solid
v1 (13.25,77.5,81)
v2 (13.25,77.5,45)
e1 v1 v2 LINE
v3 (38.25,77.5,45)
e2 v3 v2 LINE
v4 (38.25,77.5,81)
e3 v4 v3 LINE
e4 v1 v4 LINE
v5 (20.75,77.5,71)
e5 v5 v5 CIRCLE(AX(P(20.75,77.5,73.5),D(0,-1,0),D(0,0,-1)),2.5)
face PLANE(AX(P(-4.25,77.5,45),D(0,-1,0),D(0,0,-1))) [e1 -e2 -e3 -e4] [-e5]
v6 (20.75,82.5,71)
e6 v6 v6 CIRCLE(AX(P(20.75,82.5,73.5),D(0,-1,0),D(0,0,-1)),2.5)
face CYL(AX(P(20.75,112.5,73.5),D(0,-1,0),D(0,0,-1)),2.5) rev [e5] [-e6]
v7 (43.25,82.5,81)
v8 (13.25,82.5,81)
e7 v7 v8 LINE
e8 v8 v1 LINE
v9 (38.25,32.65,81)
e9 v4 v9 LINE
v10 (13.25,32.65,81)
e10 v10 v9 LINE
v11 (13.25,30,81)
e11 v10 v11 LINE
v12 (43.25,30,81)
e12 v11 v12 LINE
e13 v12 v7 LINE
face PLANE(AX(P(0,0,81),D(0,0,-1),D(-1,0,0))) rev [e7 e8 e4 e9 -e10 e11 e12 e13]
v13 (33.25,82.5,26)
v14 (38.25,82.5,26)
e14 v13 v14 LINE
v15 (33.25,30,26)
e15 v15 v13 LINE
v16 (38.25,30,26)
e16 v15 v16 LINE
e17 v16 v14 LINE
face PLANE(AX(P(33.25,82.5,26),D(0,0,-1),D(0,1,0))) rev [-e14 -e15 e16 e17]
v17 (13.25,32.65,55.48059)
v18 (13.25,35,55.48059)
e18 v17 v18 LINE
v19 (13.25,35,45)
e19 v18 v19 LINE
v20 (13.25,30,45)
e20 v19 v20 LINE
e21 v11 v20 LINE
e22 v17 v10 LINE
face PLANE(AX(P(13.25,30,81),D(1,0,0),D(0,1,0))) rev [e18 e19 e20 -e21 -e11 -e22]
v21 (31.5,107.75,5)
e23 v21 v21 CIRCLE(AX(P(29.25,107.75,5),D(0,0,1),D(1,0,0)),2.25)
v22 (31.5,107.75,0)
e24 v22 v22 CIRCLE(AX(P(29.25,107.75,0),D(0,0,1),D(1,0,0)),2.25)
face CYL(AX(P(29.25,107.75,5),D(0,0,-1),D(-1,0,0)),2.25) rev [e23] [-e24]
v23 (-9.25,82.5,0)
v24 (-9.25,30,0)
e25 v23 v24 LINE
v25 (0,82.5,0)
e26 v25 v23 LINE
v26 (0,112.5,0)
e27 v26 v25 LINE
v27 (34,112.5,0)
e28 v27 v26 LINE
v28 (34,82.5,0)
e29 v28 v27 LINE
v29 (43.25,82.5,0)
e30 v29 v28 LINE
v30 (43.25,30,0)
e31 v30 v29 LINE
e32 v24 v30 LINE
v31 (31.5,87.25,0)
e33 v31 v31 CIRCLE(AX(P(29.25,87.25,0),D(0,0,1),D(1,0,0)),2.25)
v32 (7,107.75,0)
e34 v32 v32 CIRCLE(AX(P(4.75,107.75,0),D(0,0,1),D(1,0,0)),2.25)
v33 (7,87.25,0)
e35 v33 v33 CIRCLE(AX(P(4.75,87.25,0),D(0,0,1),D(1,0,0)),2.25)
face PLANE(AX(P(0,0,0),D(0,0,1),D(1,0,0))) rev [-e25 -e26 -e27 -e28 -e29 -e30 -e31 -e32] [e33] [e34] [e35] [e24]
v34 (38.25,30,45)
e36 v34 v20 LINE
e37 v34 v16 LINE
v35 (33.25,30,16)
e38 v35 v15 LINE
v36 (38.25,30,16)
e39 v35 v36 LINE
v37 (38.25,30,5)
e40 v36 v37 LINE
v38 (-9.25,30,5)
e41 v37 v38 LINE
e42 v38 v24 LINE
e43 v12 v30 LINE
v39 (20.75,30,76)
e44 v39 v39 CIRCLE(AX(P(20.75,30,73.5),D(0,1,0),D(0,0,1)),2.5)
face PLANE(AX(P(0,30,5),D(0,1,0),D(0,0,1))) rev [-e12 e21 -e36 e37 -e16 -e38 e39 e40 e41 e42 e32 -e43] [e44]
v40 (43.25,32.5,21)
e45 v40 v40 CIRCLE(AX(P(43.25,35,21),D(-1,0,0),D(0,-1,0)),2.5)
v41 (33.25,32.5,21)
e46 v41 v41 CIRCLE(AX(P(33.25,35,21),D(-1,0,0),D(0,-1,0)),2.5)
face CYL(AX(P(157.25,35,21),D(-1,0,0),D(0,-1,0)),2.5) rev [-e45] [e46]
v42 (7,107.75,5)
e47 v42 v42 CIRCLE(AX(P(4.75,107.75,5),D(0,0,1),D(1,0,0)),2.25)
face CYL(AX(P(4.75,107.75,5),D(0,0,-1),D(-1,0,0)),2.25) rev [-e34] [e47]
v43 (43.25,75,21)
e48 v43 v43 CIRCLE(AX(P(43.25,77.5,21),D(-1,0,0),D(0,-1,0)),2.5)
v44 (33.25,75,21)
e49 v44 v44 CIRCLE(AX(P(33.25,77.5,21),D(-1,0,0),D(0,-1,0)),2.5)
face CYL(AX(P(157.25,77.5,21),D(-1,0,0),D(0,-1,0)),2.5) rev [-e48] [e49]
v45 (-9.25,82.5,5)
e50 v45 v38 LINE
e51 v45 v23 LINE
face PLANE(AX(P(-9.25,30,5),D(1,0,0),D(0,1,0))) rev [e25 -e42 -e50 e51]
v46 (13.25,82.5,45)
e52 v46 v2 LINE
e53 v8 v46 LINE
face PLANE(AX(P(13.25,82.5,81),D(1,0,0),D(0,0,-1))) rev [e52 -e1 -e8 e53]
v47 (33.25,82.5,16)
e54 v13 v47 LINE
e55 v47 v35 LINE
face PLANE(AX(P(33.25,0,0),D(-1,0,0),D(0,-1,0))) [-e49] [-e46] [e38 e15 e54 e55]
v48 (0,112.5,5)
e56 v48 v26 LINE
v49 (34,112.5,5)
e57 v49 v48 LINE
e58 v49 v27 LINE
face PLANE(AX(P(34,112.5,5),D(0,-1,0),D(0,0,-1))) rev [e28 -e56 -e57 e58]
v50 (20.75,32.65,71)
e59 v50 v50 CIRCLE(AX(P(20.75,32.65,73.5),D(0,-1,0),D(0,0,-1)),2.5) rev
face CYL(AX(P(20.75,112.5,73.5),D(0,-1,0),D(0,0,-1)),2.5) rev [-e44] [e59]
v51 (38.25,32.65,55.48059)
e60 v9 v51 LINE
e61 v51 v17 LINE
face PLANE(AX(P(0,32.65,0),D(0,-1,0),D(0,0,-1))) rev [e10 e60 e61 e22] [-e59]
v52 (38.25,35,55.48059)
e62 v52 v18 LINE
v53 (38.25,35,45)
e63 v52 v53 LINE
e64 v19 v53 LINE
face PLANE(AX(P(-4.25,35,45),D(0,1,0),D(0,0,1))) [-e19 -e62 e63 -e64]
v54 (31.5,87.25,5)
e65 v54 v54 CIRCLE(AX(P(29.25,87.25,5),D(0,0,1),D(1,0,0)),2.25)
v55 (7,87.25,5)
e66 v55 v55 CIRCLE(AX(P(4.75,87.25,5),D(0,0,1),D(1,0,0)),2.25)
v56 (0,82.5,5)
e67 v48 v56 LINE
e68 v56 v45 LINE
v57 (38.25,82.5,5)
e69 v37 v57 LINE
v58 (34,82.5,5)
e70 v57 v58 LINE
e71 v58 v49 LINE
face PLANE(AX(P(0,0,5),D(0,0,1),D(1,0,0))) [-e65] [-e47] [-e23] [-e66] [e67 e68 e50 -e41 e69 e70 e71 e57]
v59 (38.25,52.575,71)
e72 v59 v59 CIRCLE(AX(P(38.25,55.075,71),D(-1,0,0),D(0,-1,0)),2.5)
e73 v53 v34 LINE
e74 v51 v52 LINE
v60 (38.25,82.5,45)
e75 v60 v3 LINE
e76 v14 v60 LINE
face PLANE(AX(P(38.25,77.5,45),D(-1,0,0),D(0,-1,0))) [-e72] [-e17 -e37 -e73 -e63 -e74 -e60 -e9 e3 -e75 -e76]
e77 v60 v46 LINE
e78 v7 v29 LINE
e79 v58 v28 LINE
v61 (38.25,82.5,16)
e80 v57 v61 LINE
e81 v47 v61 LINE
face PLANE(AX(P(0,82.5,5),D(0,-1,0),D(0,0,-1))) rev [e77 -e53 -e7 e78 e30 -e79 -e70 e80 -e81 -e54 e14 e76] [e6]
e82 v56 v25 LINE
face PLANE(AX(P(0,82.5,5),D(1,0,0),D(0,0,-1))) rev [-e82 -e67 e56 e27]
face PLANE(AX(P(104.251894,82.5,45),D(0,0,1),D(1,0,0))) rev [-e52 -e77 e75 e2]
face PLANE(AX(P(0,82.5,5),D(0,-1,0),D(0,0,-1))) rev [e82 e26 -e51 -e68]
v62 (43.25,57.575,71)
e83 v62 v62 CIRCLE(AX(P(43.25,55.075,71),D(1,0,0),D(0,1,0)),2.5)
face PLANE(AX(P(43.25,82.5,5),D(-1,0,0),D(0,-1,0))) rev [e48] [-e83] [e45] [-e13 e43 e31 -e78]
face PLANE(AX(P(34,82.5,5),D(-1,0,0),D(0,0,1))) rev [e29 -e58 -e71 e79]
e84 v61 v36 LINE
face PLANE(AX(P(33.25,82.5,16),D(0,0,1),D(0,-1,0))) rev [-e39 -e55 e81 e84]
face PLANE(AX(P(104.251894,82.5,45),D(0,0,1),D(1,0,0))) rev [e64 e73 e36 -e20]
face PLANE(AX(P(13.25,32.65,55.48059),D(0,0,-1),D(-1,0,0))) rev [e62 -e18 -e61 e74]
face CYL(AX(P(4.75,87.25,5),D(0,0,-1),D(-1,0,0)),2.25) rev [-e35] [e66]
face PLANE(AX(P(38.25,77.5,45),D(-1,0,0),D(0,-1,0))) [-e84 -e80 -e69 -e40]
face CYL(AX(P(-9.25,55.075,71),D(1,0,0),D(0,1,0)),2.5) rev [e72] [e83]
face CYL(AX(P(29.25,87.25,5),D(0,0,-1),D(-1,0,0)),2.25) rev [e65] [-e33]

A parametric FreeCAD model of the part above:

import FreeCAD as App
import Part
import Sketcher
from FreeCAD import Vector


def add_polygon(sketch, points):
    """Adds a closed chain of lines whose ends are joined by coincident constraints."""
    first, n = sketch.GeometryCount, len(points)
    for a, b in zip(points, points[1:] + points[:1]):
        sketch.addGeometry(Part.LineSegment(App.Vector(*a, 0), App.Vector(*b, 0)), False)
    for i in range(n):
        sketch.addConstraint(Sketcher.Constraint("Coincident", first + i, 2, first + (i + 1) % n, 1))

doc = App.newDocument("Part")
body = doc.addObject("PartDesign::Body", "Body")

# Sketch on XY plane
sketch1 = body.newObject("Sketcher::SketchObject", "Sketch")
sketch1.AttachmentSupport = (doc.getObject("XY_Plane"), [""])
sketch1.MapMode = "FlatFace"
add_polygon(sketch1, [(-9.2, 30), (0, 30), (0, 0), (34, 0), (34, 30), (43.2, 30), (43.2, 82.5), (34, 82.5), (34, 112.5), (0, 112.5), (0, 82.5), (-9.2, 82.5)])  # lines 0-11
sketch1.addGeometry(Part.Circle(Vector(29.2, 4.8, 0), Vector(0, 0, 1), 2.2), False)  # 12
sketch1.addGeometry(Part.Circle(Vector(29.2, 25.2, 0), Vector(0, 0, 1), 2.2), False)  # 13
sketch1.addGeometry(Part.Circle(Vector(4.8, 4.8, 0), Vector(0, 0, 1), 2.2), False)  # 14
sketch1.addGeometry(Part.Circle(Vector(4.8, 25.2, 0), Vector(0, 0, 1), 2.2), False)  # 15
sketch1.addGeometry(Part.Circle(Vector(29.2, 87.2, 0), Vector(0, 0, 1), 2.2), False)  # 16
sketch1.addGeometry(Part.Circle(Vector(29.2, 107.8, 0), Vector(0, 0, 1), 2.2), False)  # 17
sketch1.addGeometry(Part.Circle(Vector(4.8, 87.2, 0), Vector(0, 0, 1), 2.2), False)  # 18
sketch1.addGeometry(Part.Circle(Vector(4.8, 107.8, 0), Vector(0, 0, 1), 2.2), False)  # 19
sketch1.addConstraint([
    Sketcher.Constraint("Horizontal", 0),
    Sketcher.Constraint("Vertical", 1),
    Sketcher.Constraint("Horizontal", 2),
    Sketcher.Constraint("Vertical", 3),
    Sketcher.Constraint("Horizontal", 4),
    Sketcher.Constraint("Vertical", 5),
    Sketcher.Constraint("Horizontal", 6),
    Sketcher.Constraint("Vertical", 7),
    Sketcher.Constraint("Horizontal", 8),
    Sketcher.Constraint("Vertical", 9),
    Sketcher.Constraint("Horizontal", 10),
    Sketcher.Constraint("Vertical", 11),
    Sketcher.Constraint("Coincident", 1, 2, -1, 1),
    Sketcher.Constraint("Equal", 12, 13),
    Sketcher.Constraint("Equal", 13, 14),
    Sketcher.Constraint("Equal", 14, 15),
    Sketcher.Constraint("Equal", 15, 16),
    Sketcher.Constraint("Equal", 16, 17),
    Sketcher.Constraint("Equal", 17, 18),
    Sketcher.Constraint("Equal", 18, 19),
    Sketcher.Constraint("PointOnObject", 8, 2, -2),
    Sketcher.Constraint("Horizontal", 12, 3, 14, 3),
    Sketcher.Constraint("Horizontal", 13, 3, 15, 3),
    Sketcher.Constraint("Horizontal", 16, 3, 18, 3),
    Sketcher.Constraint("Horizontal", 17, 3, 19, 3),
    Sketcher.Constraint("Horizontal", 0, 2, 3, 2),
    Sketcher.Constraint("Horizontal", 6, 2, 9, 2),
    Sketcher.Constraint("Vertical", 12, 3, 13, 3),
    Sketcher.Constraint("Vertical", 14, 3, 15, 3),
    Sketcher.Constraint("Vertical", 13, 3, 16, 3),
    Sketcher.Constraint("Vertical", 16, 3, 17, 3),
    Sketcher.Constraint("Vertical", 15, 3, 18, 3),
    Sketcher.Constraint("Vertical", 18, 3, 19, 3),
    Sketcher.Constraint("Vertical", 3, 2, 6, 2),
    Sketcher.Constraint("Equal", 0, 4),
    Sketcher.Constraint("Equal", 3, 7),
    Sketcher.Constraint("Diameter", 12, 4.5),
    Sketcher.Constraint("DistanceX", 2, 1, 2, 2, 34.0),
    Sketcher.Constraint("DistanceY", 1, 2, 1, 1, 30.0),
    Sketcher.Constraint("DistanceY", 5, 1, 5, 2, 52.5),
    Sketcher.Constraint("DistanceY", 13, 3, 16, 3, 62.0),
    Sketcher.Constraint("DistanceY", 12, 3, 17, 3, 103.0),
    Sketcher.Constraint("DistanceX", 13, 3, 4, 2, 14.0),
    Sketcher.Constraint("DistanceX", 10, 2, 18, 3, 14.0),
    Sketcher.Constraint("DistanceX", 0, 1, 0, 2, 9.25),
    Sketcher.Constraint("DistanceY", 12, 3, 13, 3, 20.5),
    Sketcher.Constraint("DistanceY", -1, 1, 12, 3, 4.75),
])
pad1 = body.newObject("PartDesign::Pad", "Pad")
pad1.Profile = sketch1
pad1.Length = 5

# Sketch on XY plane
sketch2 = body.newObject("Sketcher::SketchObject", "Sketch001")
sketch2.AttachmentSupport = (doc.getObject("XY_Plane"), [""])
sketch2.MapMode = "FlatFace"
sketch2.AttachmentOffset = App.Placement(Vector(0, 0, 5), App.Rotation())
add_polygon(sketch2, [(-9, 82), (-9, 30), (43, 30), (43, 82)])  # lines 0-3
add_polygon(sketch2, [(38, 35), (-4, 35), (-4, 78), (38, 78)])  # lines 4-7
sketch2.addConstraint([
    Sketcher.Constraint("Vertical", 0),
    Sketcher.Constraint("Horizontal", 1),
    Sketcher.Constraint("Vertical", 2),
    Sketcher.Constraint("Horizontal", 3),
    Sketcher.Constraint("Horizontal", 4),
    Sketcher.Constraint("Vertical", 5),
    Sketcher.Constraint("Horizontal", 6),
    Sketcher.Constraint("Vertical", 7),
    Sketcher.Constraint("Equal", 3, 0),
    Sketcher.Constraint("Equal", 6, 5),
    Sketcher.Constraint("DistanceX", 1, 1, 1, 2, 52.5),
    Sketcher.Constraint("DistanceX", 4, 2, 4, 1, 42.5),
    Sketcher.Constraint("DistanceY", -1, 1, 0, 2, 30.0),
    Sketcher.Constraint("DistanceY", -1, 1, 4, 2, 35.0),
    Sketcher.Constraint("DistanceX", 0, 2, 4, 2, 5.0),
    Sketcher.Constraint("DistanceX", 0, 2, -1, 1, 9.25),
])
pad2 = body.newObject("PartDesign::Pad", "Pad001")
pad2.Profile = sketch2
pad2.Length = 40

# Sketch on XY plane
sketch3 = body.newObject("Sketcher::SketchObject", "Sketch002")
sketch3.AttachmentSupport = (doc.getObject("XY_Plane"), [""])
sketch3.MapMode = "FlatFace"
sketch3.AttachmentOffset = App.Placement(Vector(0, 0, 45), App.Rotation())
add_polygon(sketch3, [(43, 30), (43, 82), (13, 82), (13, 78), (38, 78), (38, 35), (13, 35), (13, 30)])  # lines 0-7
sketch3.addConstraint([
    Sketcher.Constraint("Vertical", 0),
    Sketcher.Constraint("Horizontal", 1),
    Sketcher.Constraint("Vertical", 2),
    Sketcher.Constraint("Horizontal", 3),
    Sketcher.Constraint("Vertical", 4),
    Sketcher.Constraint("Horizontal", 5),
    Sketcher.Constraint("Vertical", 6),
    Sketcher.Constraint("Horizontal", 7),
    Sketcher.Constraint("Vertical", 2, 2, 5, 2),
    Sketcher.Constraint("Equal", 2, 6),
    Sketcher.Constraint("DistanceX", 1, 2, 1, 1, 30.0),
    Sketcher.Constraint("DistanceX", 3, 1, 3, 2, 25.0),
    Sketcher.Constraint("DistanceY", 2, 2, 2, 1, 5.0),
    Sketcher.Constraint("DistanceY", 0, 1, 0, 2, 52.5),
    Sketcher.Constraint("DistanceY", -1, 1, 4, 2, 35.0),
    Sketcher.Constraint("DistanceX", -1, 1, 0, 2, 43.25),
])
pad3 = body.newObject("PartDesign::Pad", "Pad002")
pad3.Profile = sketch3
pad3.Length = 36

# Sketch on XZ plane
sketch4 = body.newObject("Sketcher::SketchObject", "Sketch003")
sketch4.AttachmentSupport = (doc.getObject("XZ_Plane"), [""])
sketch4.MapMode = "FlatFace"
sketch4.AttachmentOffset = App.Placement(Vector(0, 0, -77.5), App.Rotation())
sketch4.addGeometry(Part.Circle(Vector(20.8, 73.5, 0), Vector(0, 0, 1), 2.5), False)
sketch4.addConstraint([
    Sketcher.Constraint("Diameter", 0, 5.0),
    Sketcher.Constraint("DistanceY", -1, 1, 0, 3, 73.5),
    Sketcher.Constraint("DistanceX", -1, 1, 0, 3, 20.75),
])
pocket1 = body.newObject("PartDesign::Pocket", "Pocket")
pocket1.Profile = sketch4
pocket1.Type = "ThroughAll"
pocket1.Midplane = True

# Sketch on YZ plane
sketch5 = body.newObject("Sketcher::SketchObject", "Sketch004")
sketch5.AttachmentSupport = (doc.getObject("YZ_Plane"), [""])
sketch5.MapMode = "FlatFace"
sketch5.AttachmentOffset = App.Placement(Vector(0, 0, 43.25), App.Rotation())
sketch5.addGeometry(Part.Circle(Vector(55.1, 71, 0), Vector(0, 0, 1), 2.5), False)
sketch5.addConstraint([
    Sketcher.Constraint("Diameter", 0, 5.0),
    Sketcher.Constraint("DistanceY", -1, 1, 0, 3, 71.0),
    Sketcher.Constraint("DistanceX", -1, 1, 0, 3, 55.075),
])
pocket2 = body.newObject("PartDesign::Pocket", "Pocket001")
pocket2.Profile = sketch5
pocket2.Type = "ThroughAll"
pocket2.Midplane = True

# Sketch on YZ plane
sketch6 = body.newObject("Sketcher::SketchObject", "Sketch005")
sketch6.AttachmentSupport = (doc.getObject("YZ_Plane"), [""])
sketch6.MapMode = "FlatFace"
sketch6.AttachmentOffset = App.Placement(Vector(0, 0, -9.25), App.Rotation())
add_polygon(sketch6, [(74, 5), (38, 5), (38, 45), (74, 45)])  # lines 0-3
sketch6.addConstraint([
    Sketcher.Constraint("Horizontal", 0),
    Sketcher.Constraint("Vertical", 1),
    Sketcher.Constraint("Horizontal", 2),
    Sketcher.Constraint("Vertical", 3),
    Sketcher.Constraint("DistanceY", 1, 1, 1, 2, 40.0),
    Sketcher.Constraint("DistanceX", 0, 2, 0, 1, 36.5),
    Sketcher.Constraint("DistanceX", -1, 1, 0, 2, 38.0),
    Sketcher.Constraint("DistanceY", -1, 1, 0, 2, 5.0),
])
pocket3 = body.newObject("PartDesign::Pocket", "Pocket002")
pocket3.Profile = sketch6
pocket3.Length = 24
pocket3.Reversed = True

# Sketch on XZ plane
sketch7 = body.newObject("Sketcher::SketchObject", "Sketch006")
sketch7.AttachmentSupport = (doc.getObject("XZ_Plane"), [""])
sketch7.MapMode = "FlatFace"
sketch7.AttachmentOffset = App.Placement(Vector(0, 0, -35), App.Rotation())
add_polygon(sketch7, [(13, 55), (13, 81), (38, 81), (38, 55)])  # lines 0-3
sketch7.addConstraint([
    Sketcher.Constraint("Vertical", 0),
    Sketcher.Constraint("Horizontal", 1),
    Sketcher.Constraint("Vertical", 2),
    Sketcher.Constraint("Horizontal", 3),
    Sketcher.Constraint("DistanceX", 1, 1, 1, 2, 25.0),
    Sketcher.Constraint("DistanceY", -1, 1, 0, 2, 81.0),
    Sketcher.Constraint("DistanceX", -1, 1, 0, 2, 13.25),
    Sketcher.Constraint("DistanceY", 0, 1, 0, 2, 25.51941),
])
pocket4 = body.newObject("PartDesign::Pocket", "Pocket003")
pocket4.Profile = sketch7
pocket4.Length = 2.35
pocket4.Reversed = True

# Sketch on YZ plane
sketch8 = body.newObject("Sketcher::SketchObject", "Sketch007")
sketch8.AttachmentSupport = (doc.getObject("YZ_Plane"), [""])
sketch8.MapMode = "FlatFace"
add_polygon(sketch8, [(30, 0), (0, 0), (0, 5), (30, 5)])  # lines 0-3
sketch8.addConstraint([
    Sketcher.Constraint("Horizontal", 0),
    Sketcher.Constraint("Vertical", 1),
    Sketcher.Constraint("Horizontal", 2),
    Sketcher.Constraint("Vertical", 3),
    Sketcher.Constraint("Coincident", 0, 2, -1, 1),
    Sketcher.Constraint("DistanceX", 0, 2, 0, 1, 30.0),
    Sketcher.Constraint("DistanceY", 1, 1, 1, 2, 5.0),
])
pocket5 = body.newObject("PartDesign::Pocket", "Pocket004")
pocket5.Profile = sketch8
pocket5.Length = 119
pocket5.Reversed = True

# Sketch on YZ plane
sketch9 = body.newObject("Sketcher::SketchObject", "Sketch008")
sketch9.AttachmentSupport = (doc.getObject("YZ_Plane"), [""])
sketch9.MapMode = "FlatFace"
sketch9.AttachmentOffset = App.Placement(Vector(0, 0, -9.25), App.Rotation())
add_polygon(sketch9, [(82, 5), (30, 5), (30, 45), (82, 45)])  # lines 0-3
sketch9.addConstraint([
    Sketcher.Constraint("Horizontal", 0),
    Sketcher.Constraint("Vertical", 1),
    Sketcher.Constraint("Horizontal", 2),
    Sketcher.Constraint("Vertical", 3),
    Sketcher.Constraint("DistanceY", 1, 1, 1, 2, 40.0),
    Sketcher.Constraint("DistanceX", 0, 2, 0, 1, 52.5),
    Sketcher.Constraint("DistanceX", -1, 1, 0, 2, 30.0),
    Sketcher.Constraint("DistanceY", -1, 1, 0, 2, 5.0),
])
pocket6 = body.newObject("PartDesign::Pocket", "Pocket005")
pocket6.Profile = sketch9
pocket6.Length = 47.5
pocket6.Reversed = True

# Sketch on YZ plane
sketch10 = body.newObject("Sketcher::SketchObject", "Sketch009")
sketch10.AttachmentSupport = (doc.getObject("YZ_Plane"), [""])
sketch10.MapMode = "FlatFace"
sketch10.AttachmentOffset = App.Placement(Vector(0, 0, 38.25), App.Rotation())
sketch10.addGeometry([
    Part.Circle(Vector(77.5, 21, 0), Vector(0, 0, 1), 2.5),
    Part.Circle(Vector(35, 21, 0), Vector(0, 0, 1), 2.5),
], False)
sketch10.addConstraint([
    Sketcher.Constraint("Equal", 0, 1),
    Sketcher.Constraint("Horizontal", 0, 3, 1, 3),
    Sketcher.Constraint("Diameter", 0, 5.0),
    Sketcher.Constraint("DistanceY", -1, 1, 0, 3, 21.0),
    Sketcher.Constraint("DistanceX", -1, 1, 1, 3, 35.0),
    Sketcher.Constraint("DistanceX", -1, 1, 0, 3, 77.5),
])
pocket7 = body.newObject("PartDesign::Pocket", "Pocket006")
pocket7.Profile = sketch10
pocket7.Length = 119
pocket7.Reversed = True

# Sketch on YZ plane
sketch11 = body.newObject("Sketcher::SketchObject", "Sketch010")
sketch11.AttachmentSupport = (doc.getObject("YZ_Plane"), [""])
sketch11.MapMode = "FlatFace"
sketch11.AttachmentOffset = App.Placement(Vector(0, 0, 33.25), App.Rotation())
add_polygon(sketch11, [(82.5, 16), (30, 16), (30, 26), (82.5, 26)])  # lines 0-3
sketch11.addGeometry(Part.Circle(Vector(35, 21, 0), Vector(0, 0, 1), 2.5), False)  # 4
sketch11.addGeometry(Part.Circle(Vector(77.5, 21, 0), Vector(0, 0, 1), 2.5), False)  # 5
sketch11.addConstraint([
    Sketcher.Constraint("Horizontal", 0),
    Sketcher.Constraint("Vertical", 1),
    Sketcher.Constraint("Horizontal", 2),
    Sketcher.Constraint("Vertical", 3),
    Sketcher.Constraint("Equal", 4, 5),
    Sketcher.Constraint("Horizontal", 4, 3, 5, 3),
    Sketcher.Constraint("Diameter", 4, 5.0),
    Sketcher.Constraint("DistanceY", 1, 1, 1, 2, 10.0),
    Sketcher.Constraint("DistanceX", 0, 2, 0, 1, 52.5),
    Sketcher.Constraint("DistanceX", -1, 1, 4, 3, 35.0),
    Sketcher.Constraint("DistanceY", -1, 1, 4, 3, 21.0),
    Sketcher.Constraint("DistanceX", -1, 1, 0, 2, 30.0),
    Sketcher.Constraint("DistanceY", -1, 1, 0, 2, 16.0),
    Sketcher.Constraint("DistanceX", 5, 3, 2, 2, 5.0),
])
pad4 = body.newObject("PartDesign::Pad", "Pad003")
pad4.Profile = sketch11
pad4.Length = 5

doc.recompute()
